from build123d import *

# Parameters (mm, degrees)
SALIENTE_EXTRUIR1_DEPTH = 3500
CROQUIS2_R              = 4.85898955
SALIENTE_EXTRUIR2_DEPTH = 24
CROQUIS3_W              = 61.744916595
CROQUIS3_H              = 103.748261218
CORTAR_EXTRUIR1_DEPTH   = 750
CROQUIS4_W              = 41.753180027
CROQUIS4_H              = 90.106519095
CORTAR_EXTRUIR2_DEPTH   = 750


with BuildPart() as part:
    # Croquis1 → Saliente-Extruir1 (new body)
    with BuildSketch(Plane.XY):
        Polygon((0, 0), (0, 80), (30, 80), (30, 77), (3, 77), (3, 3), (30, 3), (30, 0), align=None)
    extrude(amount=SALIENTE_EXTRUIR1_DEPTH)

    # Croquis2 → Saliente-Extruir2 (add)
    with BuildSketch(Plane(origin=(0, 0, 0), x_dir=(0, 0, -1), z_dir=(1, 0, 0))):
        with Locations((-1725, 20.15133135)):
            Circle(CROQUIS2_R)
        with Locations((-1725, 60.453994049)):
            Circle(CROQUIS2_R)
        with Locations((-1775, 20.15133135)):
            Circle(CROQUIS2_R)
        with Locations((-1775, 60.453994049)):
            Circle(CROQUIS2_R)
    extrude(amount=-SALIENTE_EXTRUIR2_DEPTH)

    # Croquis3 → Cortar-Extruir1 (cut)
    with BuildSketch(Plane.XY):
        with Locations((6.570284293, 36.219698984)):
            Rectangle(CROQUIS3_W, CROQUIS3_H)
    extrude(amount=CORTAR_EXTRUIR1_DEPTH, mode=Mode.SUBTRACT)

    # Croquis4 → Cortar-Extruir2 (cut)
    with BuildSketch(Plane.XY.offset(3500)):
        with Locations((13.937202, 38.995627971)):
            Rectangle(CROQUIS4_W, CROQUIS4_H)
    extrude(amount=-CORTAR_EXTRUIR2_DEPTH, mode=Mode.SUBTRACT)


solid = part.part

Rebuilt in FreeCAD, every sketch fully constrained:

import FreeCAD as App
import Part
import Sketcher

V = App.Vector
Q = App.Units.Quantity

doc = App.newDocument("Part")
params = doc.addObject("Spreadsheet::Sheet", "Params")
for row, (alias, value) in enumerate([
    ("sketch1_width", "30 mm"),
    ("sketch1_width2", "27 mm"),
    ("sketch1_height", "80 mm"),
    ("sketch1_height2", "3 mm"),
    ("pad1_length", "3500 mm"),
    ("pad2_length", "24 mm"),
    ("pocket1_length", "750 mm"),
    ("pocket2_length", "750 mm"),
], start=1):
    params.set(f"A{row}", alias)
    params.set(f"B{row}", "=" + value)
    params.setAlias(f"B{row}", alias)

body = doc.addObject("PartDesign::Body", "Body")

# Sketch on XY plane
sketch1 = doc.addObject("Sketcher::SketchObject", "Sketch")
body.addObject(sketch1)
sketch1.AttachmentSupport = (doc.XY_Plane, [""])
sketch1.MapMode = "FlatFace"
sketch1.addGeometry(Part.LineSegment(V(0, 80, 0), V(0, 0, 0)), False)
sketch1.addGeometry(Part.LineSegment(V(0, 0, 0), V(30, 0, 0)), False)
sketch1.addGeometry(Part.LineSegment(V(30, 0, 0), V(30, 3, 0)), False)
sketch1.addGeometry(Part.LineSegment(V(30, 3, 0), V(3, 3, 0)), False)
sketch1.addGeometry(Part.LineSegment(V(3, 3, 0), V(3, 77, 0)), False)
sketch1.addGeometry(Part.LineSegment(V(3, 77, 0), V(30, 77, 0)), False)
sketch1.addGeometry(Part.LineSegment(V(30, 77, 0), V(30, 80, 0)), False)
sketch1.addGeometry(Part.LineSegment(V(30, 80, 0), V(0, 80, 0)), False)
sketch1.addConstraint(Sketcher.Constraint("Coincident", 0, 2, 1, 1))
sketch1.addConstraint(Sketcher.Constraint("Coincident", 1, 2, 2, 1))
sketch1.addConstraint(Sketcher.Constraint("Coincident", 2, 2, 3, 1))
sketch1.addConstraint(Sketcher.Constraint("Coincident", 3, 2, 4, 1))
sketch1.addConstraint(Sketcher.Constraint("Coincident", 4, 2, 5, 1))
sketch1.addConstraint(Sketcher.Constraint("Coincident", 5, 2, 6, 1))
sketch1.addConstraint(Sketcher.Constraint("Coincident", 6, 2, 7, 1))
sketch1.addConstraint(Sketcher.Constraint("Coincident", 7, 2, 0, 1))
sketch1.addConstraint(Sketcher.Constraint("Vertical", 0))
sketch1.addConstraint(Sketcher.Constraint("Horizontal", 1))
sketch1.addConstraint(Sketcher.Constraint("Vertical", 2))
sketch1.addConstraint(Sketcher.Constraint("Horizontal", 3))
sketch1.addConstraint(Sketcher.Constraint("Vertical", 4))
sketch1.addConstraint(Sketcher.Constraint("Horizontal", 5))
sketch1.addConstraint(Sketcher.Constraint("Vertical", 6))
sketch1.addConstraint(Sketcher.Constraint("Horizontal", 7))
sketch1.addConstraint(Sketcher.Constraint("Coincident", 0, 2, -1, 1))
sketch1.addConstraint(Sketcher.Constraint("Vertical", 2, 2, 5, 2))
sketch1.addConstraint(Sketcher.Constraint("Equal", 2, 6))
sketch1.addConstraint(Sketcher.Constraint("DistanceX", 1, 1, 1, 2, Q("30 mm")))
sketch1.addConstraint(Sketcher.Constraint("DistanceX", 3, 2, 3, 1, Q("27 mm")))
sketch1.addConstraint(Sketcher.Constraint("DistanceY", 0, 2, 0, 1, Q("80 mm")))
sketch1.addConstraint(Sketcher.Constraint("DistanceY", 2, 1, 2, 2, Q("3 mm")))
sketch1.setExpression("Constraints[19]", "Params.sketch1_width")
sketch1.setExpression("Constraints[20]", "Params.sketch1_width2")
sketch1.setExpression("Constraints[21]", "Params.sketch1_height")
sketch1.setExpression("Constraints[22]", "Params.sketch1_height2")
pad1 = doc.addObject("PartDesign::Pad", "Pad")
body.addObject(pad1)
pad1.Profile = sketch1
pad1.setExpression("Length", "Params.pad1_length")

# Sketch on YZ plane
sketch2 = doc.addObject("Sketcher::SketchObject", "Sketch001")
body.addObject(sketch2)
sketch2.AttachmentSupport = (doc.YZ_Plane, [""])
sketch2.MapMode = "FlatFace"
sketch2.addGeometry(Part.Circle(V(20.2, 1725, 0), V(0, 0, 1), 4.9), False)
sketch2.addGeometry(Part.Circle(V(60.5, 1725, 0), V(0, 0, 1), 4.9), False)
sketch2.addGeometry(Part.Circle(V(20.2, 1775, 0), V(0, 0, 1), 4.9), False)
sketch2.addGeometry(Part.Circle(V(60.5, 1775, 0), V(0, 0, 1), 4.9), False)
sketch2.addConstraint(Sketcher.Constraint("Equal", 0, 1))
sketch2.addConstraint(Sketcher.Constraint("Equal", 1, 2))
sketch2.addConstraint(Sketcher.Constraint("Equal", 2, 3))
sketch2.addConstraint(Sketcher.Constraint("Horizontal", 0, 3, 1, 3))
sketch2.addConstraint(Sketcher.Constraint("Horizontal", 2, 3, 3, 3))
sketch2.addConstraint(Sketcher.Constraint("Vertical", 0, 3, 2, 3))
sketch2.addConstraint(Sketcher.Constraint("Vertical", 1, 3, 3, 3))
sketch2.addConstraint(Sketcher.Constraint("DistanceY", -1, 1, 0, 3, Q("1725 mm")))
sketch2.addConstraint(Sketcher.Constraint("DistanceY", -1, 1, 2, 3, Q("1775 mm")))
sketch2.addConstraint(Sketcher.Constraint("Diameter", 0, Q("9.717979 mm")))
sketch2.addConstraint(Sketcher.Constraint("DistanceX", -1, 1, 0, 3, Q("20.151331 mm")))
sketch2.addConstraint(Sketcher.Constraint("DistanceX", -1, 1, 1, 3, Q("60.453994 mm")))
pad2 = doc.addObject("PartDesign::Pad", "Pad001")
body.addObject(pad2)
pad2.Profile = sketch2
pad2.setExpression("Length", "Params.pad2_length")
pad2.Reversed = True

# Sketch on XY plane
sketch3 = doc.addObject("Sketcher::SketchObject", "Sketch002")
body.addObject(sketch3)
sketch3.AttachmentSupport = (doc.XY_Plane, [""])
sketch3.MapMode = "FlatFace"
sketch3.addGeometry(Part.LineSegment(V(-24, 88, 0), V(-24, -16, 0)), False)
sketch3.addGeometry(Part.LineSegment(V(-24, -16, 0), V(37, -16, 0)), False)
sketch3.addGeometry(Part.LineSegment(V(37, -16, 0), V(37, 88, 0)), False)
sketch3.addGeometry(Part.LineSegment(V(37, 88, 0), V(-24, 88, 0)), False)
sketch3.addConstraint(Sketcher.Constraint("Coincident", 0, 2, 1, 1))
sketch3.addConstraint(Sketcher.Constraint("Coincident", 1, 2, 2, 1))
sketch3.addConstraint(Sketcher.Constraint("Coincident", 2, 2, 3, 1))
sketch3.addConstraint(Sketcher.Constraint("Coincident", 3, 2, 0, 1))
sketch3.addConstraint(Sketcher.Constraint("Vertical", 0))
sketch3.addConstraint(Sketcher.Constraint("Horizontal", 1))
sketch3.addConstraint(Sketcher.Constraint("Vertical", 2))
sketch3.addConstraint(Sketcher.Constraint("Horizontal", 3))
sketch3.addConstraint(Sketcher.Constraint("DistanceY", 0, 2, 0, 1, Q("103.748261 mm")))
sketch3.addConstraint(Sketcher.Constraint("DistanceX", 1, 1, 1, 2, Q("61.744917 mm")))
sketch3.addConstraint(Sketcher.Constraint("DistanceY", 0, 2, -1, 1, Q("15.654432 mm")))
sketch3.addConstraint(Sketcher.Constraint("DistanceX", 0, 2, -1, 1, Q("24.302174 mm")))
pocket1 = doc.addObject("PartDesign::Pocket", "Pocket")
body.addObject(pocket1)
pocket1.Profile = sketch3
pocket1.setExpression("Length", "Params.pocket1_length")
pocket1.Reversed = True

# Sketch on XY plane
sketch4 = doc.addObject("Sketcher::SketchObject", "Sketch003")
body.addObject(sketch4)
sketch4.AttachmentSupport = (doc.XY_Plane, [""])
sketch4.MapMode = "FlatFace"
sketch4.AttachmentOffset = App.Placement(V(0, 0, 3500), App.Rotation())
sketch4.addGeometry(Part.LineSegment(V(-7, 84, 0), V(-7, -6, 0)), False)
sketch4.addGeometry(Part.LineSegment(V(-7, -6, 0), V(35, -6, 0)), False)
sketch4.addGeometry(Part.LineSegment(V(35, -6, 0), V(35, 84, 0)), False)
sketch4.addGeometry(Part.LineSegment(V(35, 84, 0), V(-7, 84, 0)), False)
sketch4.addConstraint(Sketcher.Constraint("Coincident", 0, 2, 1, 1))
sketch4.addConstraint(Sketcher.Constraint("Coincident", 1, 2, 2, 1))
sketch4.addConstraint(Sketcher.Constraint("Coincident", 2, 2, 3, 1))
sketch4.addConstraint(Sketcher.Constraint("Coincident", 3, 2, 0, 1))
sketch4.addConstraint(Sketcher.Constraint("Vertical", 0))
sketch4.addConstraint(Sketcher.Constraint("Horizontal", 1))
sketch4.addConstraint(Sketcher.Constraint("Vertical", 2))
sketch4.addConstraint(Sketcher.Constraint("Horizontal", 3))
sketch4.addConstraint(Sketcher.Constraint("DistanceX", 1, 1, 1, 2, Q("41.75318 mm")))
sketch4.addConstraint(Sketcher.Constraint("DistanceY", 0, 2, 0, 1, Q("90.106519 mm")))
sketch4.addConstraint(Sketcher.Constraint("DistanceX", 0, 2, -1, 1, Q("6.939388 mm")))
sketch4.addConstraint(Sketcher.Constraint("DistanceY", 0, 2, -1, 1, Q("6.057632 mm")))
pocket2 = doc.addObject("PartDesign::Pocket", "Pocket001")
body.addObject(pocket2)
pocket2.Profile = sketch4
pocket2.setExpression("Length", "Params.pocket2_length")

doc.recompute()
